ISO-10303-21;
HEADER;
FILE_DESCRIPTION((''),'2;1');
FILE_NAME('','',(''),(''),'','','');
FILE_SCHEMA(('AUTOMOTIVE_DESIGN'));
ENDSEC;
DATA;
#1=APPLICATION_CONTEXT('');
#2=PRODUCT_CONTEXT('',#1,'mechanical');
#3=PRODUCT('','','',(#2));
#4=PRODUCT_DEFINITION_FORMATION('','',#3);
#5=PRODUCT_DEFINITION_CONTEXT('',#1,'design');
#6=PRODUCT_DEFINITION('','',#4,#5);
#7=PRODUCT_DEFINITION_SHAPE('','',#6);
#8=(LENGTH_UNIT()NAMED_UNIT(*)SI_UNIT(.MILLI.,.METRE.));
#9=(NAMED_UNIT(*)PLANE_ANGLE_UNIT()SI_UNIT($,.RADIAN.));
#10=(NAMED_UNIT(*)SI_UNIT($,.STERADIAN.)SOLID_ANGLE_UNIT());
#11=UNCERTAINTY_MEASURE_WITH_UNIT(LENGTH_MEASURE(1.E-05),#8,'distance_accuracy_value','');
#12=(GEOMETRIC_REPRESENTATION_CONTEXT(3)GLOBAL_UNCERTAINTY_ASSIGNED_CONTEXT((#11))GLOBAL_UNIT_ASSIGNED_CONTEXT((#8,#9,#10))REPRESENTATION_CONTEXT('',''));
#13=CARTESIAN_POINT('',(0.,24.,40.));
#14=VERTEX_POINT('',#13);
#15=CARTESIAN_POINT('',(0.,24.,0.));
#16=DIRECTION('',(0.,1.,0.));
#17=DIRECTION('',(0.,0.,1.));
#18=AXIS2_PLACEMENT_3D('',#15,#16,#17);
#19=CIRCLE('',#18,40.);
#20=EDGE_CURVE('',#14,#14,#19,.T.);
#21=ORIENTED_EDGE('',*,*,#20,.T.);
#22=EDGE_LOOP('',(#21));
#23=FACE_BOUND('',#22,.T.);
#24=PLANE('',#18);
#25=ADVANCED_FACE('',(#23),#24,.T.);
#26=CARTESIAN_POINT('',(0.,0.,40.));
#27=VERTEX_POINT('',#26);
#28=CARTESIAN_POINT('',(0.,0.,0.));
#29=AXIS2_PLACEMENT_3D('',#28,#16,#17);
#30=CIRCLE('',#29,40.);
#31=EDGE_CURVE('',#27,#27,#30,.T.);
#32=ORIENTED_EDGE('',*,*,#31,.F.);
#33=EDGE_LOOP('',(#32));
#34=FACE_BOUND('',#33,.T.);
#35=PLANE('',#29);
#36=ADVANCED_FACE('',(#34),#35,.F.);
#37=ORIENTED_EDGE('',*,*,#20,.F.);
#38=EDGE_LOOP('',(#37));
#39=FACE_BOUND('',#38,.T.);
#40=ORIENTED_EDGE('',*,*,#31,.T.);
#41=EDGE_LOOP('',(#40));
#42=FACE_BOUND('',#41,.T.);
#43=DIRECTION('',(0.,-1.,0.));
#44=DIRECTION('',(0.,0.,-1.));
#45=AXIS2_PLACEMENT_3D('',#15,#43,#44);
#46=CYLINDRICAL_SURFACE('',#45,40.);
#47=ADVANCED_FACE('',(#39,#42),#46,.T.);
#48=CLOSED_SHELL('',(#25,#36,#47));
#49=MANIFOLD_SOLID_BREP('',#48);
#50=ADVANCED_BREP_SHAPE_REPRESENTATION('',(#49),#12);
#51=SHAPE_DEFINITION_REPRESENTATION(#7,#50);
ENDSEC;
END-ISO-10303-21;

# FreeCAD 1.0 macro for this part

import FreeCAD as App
import Part
import Sketcher

doc = App.newDocument("Part")
body = doc.addObject("PartDesign::Body", "Body")

sketch1 = body.newObject("Sketcher::SketchObject", "Sketch")
sketch1.AttachmentSupport = (doc.getObject("XZ_Plane"), [""])
sketch1.MapMode = "FlatFace"
sketch1.addGeometry(Part.Circle(App.Vector(0, 0, 0), App.Vector(0, 0, 1), 40), False)
sketch1.addConstraint([
    Sketcher.Constraint("Coincident", 0, 3, -1, 1),
    Sketcher.Constraint("Diameter", 0, 80.0),
])
pad1 = body.newObject("PartDesign::Pad", "Pad")
pad1.Profile = sketch1
pad1.Length = 24
pad1.Reversed = True

doc.recompute()
